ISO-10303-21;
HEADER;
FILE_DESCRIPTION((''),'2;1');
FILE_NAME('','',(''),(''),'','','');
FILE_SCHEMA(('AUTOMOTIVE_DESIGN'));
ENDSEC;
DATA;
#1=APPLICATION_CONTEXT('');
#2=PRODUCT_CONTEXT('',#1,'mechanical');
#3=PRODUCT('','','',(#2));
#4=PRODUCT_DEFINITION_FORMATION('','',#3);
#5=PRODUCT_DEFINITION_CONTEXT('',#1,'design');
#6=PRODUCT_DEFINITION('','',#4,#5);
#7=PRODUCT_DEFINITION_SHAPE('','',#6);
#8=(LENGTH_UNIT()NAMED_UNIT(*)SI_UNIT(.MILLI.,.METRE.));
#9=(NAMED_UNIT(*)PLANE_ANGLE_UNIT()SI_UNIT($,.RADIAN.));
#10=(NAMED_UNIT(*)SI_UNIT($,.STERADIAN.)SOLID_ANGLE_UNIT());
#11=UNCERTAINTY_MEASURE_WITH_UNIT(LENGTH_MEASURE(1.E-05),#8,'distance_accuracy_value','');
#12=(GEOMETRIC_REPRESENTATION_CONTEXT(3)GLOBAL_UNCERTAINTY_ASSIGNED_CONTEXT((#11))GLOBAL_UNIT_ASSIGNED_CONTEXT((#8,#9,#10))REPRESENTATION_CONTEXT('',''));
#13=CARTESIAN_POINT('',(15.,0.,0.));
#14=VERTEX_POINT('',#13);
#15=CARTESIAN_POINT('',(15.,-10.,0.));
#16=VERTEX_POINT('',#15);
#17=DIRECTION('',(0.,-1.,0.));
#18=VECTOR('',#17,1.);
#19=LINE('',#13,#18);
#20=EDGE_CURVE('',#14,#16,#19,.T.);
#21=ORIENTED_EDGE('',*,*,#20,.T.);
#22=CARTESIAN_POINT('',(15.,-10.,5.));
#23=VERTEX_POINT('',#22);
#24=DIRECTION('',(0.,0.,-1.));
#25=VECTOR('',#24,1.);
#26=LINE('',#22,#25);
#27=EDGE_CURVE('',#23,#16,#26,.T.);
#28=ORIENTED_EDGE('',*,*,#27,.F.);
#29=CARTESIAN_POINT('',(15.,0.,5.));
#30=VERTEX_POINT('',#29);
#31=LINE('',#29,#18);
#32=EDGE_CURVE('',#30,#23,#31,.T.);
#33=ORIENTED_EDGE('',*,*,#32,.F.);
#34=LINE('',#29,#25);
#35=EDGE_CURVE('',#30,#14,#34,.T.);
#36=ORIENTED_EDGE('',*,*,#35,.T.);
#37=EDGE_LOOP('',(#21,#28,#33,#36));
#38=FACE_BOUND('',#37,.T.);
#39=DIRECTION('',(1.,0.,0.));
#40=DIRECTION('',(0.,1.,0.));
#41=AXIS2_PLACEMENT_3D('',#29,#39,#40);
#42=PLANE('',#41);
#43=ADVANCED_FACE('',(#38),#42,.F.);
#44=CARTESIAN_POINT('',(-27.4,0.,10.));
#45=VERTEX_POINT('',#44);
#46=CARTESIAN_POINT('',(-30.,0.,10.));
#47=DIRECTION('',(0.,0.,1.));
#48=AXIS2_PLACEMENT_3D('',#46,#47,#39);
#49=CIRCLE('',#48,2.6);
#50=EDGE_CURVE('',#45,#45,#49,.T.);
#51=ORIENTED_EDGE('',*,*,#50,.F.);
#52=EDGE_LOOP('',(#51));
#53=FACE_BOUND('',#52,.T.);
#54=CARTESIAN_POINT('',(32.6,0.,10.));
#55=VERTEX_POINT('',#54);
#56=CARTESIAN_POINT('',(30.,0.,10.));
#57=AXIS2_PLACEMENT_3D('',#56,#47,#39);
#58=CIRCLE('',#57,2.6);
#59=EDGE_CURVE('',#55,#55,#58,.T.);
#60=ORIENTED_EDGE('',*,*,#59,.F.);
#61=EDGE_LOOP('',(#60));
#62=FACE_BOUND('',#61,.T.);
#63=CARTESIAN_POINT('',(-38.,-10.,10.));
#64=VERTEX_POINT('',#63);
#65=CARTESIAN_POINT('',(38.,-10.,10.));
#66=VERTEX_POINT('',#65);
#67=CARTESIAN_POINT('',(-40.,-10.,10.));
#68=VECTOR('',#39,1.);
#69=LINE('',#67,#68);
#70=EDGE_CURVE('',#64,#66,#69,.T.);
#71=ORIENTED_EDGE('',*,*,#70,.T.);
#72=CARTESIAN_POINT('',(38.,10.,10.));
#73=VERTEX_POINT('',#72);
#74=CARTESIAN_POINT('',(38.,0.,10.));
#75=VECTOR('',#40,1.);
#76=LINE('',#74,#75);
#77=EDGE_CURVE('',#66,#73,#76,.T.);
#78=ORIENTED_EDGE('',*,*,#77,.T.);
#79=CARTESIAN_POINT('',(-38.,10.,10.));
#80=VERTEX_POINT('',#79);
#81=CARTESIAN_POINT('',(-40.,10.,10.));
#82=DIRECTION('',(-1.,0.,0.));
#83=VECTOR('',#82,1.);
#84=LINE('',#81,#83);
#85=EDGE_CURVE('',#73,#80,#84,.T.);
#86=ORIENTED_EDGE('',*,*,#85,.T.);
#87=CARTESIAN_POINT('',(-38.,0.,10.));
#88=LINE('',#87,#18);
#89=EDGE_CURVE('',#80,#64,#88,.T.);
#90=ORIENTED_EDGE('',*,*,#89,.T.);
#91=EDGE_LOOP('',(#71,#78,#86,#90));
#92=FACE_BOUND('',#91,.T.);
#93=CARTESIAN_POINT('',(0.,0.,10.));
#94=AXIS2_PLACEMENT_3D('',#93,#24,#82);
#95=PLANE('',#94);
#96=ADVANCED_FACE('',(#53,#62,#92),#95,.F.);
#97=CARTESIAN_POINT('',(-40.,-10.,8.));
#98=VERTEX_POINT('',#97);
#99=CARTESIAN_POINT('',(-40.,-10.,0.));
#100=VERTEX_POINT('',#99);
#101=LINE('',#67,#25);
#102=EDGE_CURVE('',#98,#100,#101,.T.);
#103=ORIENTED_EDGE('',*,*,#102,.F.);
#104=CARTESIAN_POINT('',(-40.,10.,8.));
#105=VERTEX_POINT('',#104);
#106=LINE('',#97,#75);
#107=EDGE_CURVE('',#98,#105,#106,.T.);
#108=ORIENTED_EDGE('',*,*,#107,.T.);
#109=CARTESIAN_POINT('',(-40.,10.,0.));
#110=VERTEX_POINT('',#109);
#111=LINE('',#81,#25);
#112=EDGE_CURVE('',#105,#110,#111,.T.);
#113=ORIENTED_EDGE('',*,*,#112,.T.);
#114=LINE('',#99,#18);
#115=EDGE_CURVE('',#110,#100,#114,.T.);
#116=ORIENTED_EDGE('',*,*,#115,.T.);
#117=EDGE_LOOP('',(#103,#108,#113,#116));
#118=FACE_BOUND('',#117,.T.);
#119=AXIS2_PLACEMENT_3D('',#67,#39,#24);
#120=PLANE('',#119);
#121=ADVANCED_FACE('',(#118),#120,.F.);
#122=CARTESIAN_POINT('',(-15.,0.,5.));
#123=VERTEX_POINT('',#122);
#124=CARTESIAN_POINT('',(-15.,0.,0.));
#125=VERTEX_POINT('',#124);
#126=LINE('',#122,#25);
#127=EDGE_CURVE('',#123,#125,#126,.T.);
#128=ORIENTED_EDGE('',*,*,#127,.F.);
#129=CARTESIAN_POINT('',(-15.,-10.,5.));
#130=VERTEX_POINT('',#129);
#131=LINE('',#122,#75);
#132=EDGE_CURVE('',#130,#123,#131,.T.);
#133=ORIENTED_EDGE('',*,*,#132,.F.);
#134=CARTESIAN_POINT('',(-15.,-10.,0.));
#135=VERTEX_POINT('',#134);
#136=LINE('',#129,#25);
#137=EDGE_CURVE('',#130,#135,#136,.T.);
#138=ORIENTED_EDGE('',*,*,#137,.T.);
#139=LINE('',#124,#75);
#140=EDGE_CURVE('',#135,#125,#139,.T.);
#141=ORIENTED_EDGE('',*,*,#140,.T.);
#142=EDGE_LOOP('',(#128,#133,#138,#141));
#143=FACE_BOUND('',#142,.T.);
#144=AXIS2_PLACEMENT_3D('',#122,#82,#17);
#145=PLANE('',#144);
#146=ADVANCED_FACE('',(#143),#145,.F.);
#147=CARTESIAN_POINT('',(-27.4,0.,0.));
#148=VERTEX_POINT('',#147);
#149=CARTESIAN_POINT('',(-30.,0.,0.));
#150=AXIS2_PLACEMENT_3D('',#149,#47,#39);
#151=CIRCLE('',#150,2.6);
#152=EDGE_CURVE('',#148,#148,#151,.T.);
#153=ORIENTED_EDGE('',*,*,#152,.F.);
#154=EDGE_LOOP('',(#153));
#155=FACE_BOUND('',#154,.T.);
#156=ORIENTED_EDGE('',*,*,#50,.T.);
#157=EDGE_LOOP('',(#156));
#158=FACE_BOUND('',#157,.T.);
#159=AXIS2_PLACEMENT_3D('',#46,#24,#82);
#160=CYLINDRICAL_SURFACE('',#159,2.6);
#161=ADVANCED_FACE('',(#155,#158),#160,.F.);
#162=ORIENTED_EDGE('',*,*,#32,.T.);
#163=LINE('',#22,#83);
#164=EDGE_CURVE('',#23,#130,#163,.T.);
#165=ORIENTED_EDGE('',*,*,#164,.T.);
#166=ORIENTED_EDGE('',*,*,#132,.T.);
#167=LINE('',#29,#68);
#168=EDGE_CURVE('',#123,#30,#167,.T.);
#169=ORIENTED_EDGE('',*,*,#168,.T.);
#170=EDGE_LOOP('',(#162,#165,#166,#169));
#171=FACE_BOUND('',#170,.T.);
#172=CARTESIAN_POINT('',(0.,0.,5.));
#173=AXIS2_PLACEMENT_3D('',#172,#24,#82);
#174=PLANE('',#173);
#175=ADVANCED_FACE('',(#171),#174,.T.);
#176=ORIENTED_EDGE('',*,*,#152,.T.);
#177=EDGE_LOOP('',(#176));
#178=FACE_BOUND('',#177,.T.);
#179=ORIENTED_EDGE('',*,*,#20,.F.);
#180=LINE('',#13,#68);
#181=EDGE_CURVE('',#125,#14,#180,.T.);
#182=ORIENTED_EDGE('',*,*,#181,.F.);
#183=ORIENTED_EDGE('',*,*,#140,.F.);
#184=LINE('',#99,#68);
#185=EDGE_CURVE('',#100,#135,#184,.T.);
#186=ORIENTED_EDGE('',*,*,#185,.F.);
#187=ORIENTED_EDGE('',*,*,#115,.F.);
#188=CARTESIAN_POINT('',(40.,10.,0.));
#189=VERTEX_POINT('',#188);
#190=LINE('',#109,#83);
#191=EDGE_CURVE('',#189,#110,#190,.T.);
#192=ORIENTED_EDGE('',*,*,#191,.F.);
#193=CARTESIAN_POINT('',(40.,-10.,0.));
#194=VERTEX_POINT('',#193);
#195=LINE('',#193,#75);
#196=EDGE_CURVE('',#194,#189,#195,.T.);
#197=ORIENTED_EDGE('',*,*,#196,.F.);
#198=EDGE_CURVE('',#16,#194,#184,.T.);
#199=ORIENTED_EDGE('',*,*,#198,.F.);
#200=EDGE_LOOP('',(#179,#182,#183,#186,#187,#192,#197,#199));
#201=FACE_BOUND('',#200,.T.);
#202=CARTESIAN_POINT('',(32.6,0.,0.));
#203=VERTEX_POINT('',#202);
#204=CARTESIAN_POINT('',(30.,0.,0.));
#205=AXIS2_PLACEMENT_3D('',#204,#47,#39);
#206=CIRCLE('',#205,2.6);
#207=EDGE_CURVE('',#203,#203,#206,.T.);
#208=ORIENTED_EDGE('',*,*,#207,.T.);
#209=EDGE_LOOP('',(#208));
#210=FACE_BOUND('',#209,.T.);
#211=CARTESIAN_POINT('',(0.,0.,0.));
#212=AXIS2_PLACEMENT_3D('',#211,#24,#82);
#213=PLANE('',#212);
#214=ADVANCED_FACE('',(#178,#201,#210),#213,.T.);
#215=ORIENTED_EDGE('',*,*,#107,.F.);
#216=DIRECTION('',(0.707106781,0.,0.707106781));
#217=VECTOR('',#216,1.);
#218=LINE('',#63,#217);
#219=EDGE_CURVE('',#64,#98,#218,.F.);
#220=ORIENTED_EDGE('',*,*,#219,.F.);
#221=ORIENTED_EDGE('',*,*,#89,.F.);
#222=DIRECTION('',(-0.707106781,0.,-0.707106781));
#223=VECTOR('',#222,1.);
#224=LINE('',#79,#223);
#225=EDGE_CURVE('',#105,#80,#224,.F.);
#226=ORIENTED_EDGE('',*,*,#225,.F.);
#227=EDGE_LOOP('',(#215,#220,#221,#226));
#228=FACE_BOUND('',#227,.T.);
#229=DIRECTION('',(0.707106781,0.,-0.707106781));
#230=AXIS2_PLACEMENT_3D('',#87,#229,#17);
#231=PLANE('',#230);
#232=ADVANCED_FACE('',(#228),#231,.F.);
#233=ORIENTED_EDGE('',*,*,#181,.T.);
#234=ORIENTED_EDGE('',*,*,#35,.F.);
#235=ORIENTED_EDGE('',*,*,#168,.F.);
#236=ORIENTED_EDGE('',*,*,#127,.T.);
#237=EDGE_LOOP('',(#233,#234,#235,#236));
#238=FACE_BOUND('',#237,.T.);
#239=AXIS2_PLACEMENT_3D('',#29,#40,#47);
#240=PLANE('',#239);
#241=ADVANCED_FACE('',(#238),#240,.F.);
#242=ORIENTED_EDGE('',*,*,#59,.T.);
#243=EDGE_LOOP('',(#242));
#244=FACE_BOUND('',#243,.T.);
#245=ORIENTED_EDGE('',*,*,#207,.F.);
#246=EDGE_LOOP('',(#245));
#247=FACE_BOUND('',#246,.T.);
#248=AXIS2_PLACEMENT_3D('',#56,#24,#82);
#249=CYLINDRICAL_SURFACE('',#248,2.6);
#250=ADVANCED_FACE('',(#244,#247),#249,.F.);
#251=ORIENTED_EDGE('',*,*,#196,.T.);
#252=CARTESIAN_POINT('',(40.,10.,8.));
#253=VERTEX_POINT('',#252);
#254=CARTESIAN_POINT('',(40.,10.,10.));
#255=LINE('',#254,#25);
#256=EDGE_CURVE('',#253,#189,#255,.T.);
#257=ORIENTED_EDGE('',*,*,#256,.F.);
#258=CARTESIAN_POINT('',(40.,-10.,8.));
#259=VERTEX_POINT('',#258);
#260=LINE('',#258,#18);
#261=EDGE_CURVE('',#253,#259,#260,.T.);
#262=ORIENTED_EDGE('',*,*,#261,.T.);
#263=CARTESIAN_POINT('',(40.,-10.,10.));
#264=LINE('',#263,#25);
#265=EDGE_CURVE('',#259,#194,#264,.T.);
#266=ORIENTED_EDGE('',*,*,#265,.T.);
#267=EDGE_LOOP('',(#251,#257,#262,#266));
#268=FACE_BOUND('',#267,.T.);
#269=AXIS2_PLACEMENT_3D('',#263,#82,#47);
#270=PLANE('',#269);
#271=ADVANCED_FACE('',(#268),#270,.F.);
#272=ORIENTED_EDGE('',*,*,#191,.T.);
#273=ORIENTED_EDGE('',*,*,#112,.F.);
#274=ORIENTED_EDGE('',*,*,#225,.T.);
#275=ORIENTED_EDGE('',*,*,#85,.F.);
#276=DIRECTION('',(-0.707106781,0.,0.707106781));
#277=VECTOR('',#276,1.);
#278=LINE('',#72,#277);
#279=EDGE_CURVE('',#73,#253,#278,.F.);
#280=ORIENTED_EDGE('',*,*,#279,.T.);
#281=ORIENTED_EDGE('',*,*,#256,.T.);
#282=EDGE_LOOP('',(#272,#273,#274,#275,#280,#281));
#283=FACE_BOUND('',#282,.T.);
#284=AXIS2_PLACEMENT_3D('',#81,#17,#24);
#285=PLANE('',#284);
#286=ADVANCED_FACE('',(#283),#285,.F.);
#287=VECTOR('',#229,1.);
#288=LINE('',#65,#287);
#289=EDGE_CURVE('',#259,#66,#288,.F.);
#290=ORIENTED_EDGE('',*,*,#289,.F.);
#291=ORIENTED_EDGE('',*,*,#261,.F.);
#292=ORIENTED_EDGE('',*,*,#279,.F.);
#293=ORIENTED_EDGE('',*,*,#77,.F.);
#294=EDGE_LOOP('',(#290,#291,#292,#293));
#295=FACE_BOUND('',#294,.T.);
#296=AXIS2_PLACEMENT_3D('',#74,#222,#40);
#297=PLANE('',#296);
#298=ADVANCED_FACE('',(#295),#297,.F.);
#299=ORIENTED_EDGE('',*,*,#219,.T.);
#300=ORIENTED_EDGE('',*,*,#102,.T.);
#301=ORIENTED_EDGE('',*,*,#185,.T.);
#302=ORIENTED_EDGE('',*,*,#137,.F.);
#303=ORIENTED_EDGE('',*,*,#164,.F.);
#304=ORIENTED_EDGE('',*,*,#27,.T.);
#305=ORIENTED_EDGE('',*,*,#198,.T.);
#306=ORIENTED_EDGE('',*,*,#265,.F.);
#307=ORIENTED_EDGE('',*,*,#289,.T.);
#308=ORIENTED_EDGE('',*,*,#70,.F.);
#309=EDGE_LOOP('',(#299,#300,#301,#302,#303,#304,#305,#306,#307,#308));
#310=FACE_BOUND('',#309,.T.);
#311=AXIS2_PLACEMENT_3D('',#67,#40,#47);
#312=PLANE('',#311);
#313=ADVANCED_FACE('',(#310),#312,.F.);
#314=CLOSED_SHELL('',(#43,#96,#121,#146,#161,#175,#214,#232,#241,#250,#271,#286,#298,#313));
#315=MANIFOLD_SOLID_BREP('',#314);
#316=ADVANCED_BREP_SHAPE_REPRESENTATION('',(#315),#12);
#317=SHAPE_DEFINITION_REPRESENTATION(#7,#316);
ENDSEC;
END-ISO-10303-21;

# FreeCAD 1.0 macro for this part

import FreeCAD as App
import Part
import Sketcher
from FreeCAD import Vector


def edges_at(feature, points):
    """Names of the edges that pass closest to the given points."""
    edges = feature.Shape.Edges
    near = lambda p: min(range(len(edges)), key=lambda i: edges[i].distToShape(Part.Vertex(*p))[0])
    return sorted({f"Edge{near(p) + 1}" for p in points})


def add_polygon(sketch, points):
    """Adds a closed chain of lines whose ends are joined by coincident constraints."""
    first, n = sketch.GeometryCount, len(points)
    for a, b in zip(points, points[1:] + points[:1]):
        sketch.addGeometry(Part.LineSegment(App.Vector(*a, 0), App.Vector(*b, 0)), False)
    for i in range(n):
        sketch.addConstraint(Sketcher.Constraint("Coincident", first + i, 2, first + (i + 1) % n, 1))

doc = App.newDocument("Part")
body = doc.addObject("PartDesign::Body", "Body")

# Sketch on XY plane
sketch1 = doc.addObject("Sketcher::SketchObject", "Sketch")
body.addObject(sketch1)
sketch1.AttachmentSupport = (doc.XY_Plane, [""])
sketch1.MapMode = "FlatFace"
add_polygon(sketch1, [(-40, 10), (-40, -10), (40, -10), (40, 10)])  # lines 0-3
sketch1.addGeometry(Part.Circle(Vector(-30, 0, 0), Vector(0, 0, 1), 2.6), False)  # 4
sketch1.addGeometry(Part.Circle(Vector(30, 0, 0), Vector(0, 0, 1), 2.6), False)  # 5
sketch1.addConstraint(Sketcher.Constraint("Vertical", 0))
sketch1.addConstraint(Sketcher.Constraint("Horizontal", 1))
sketch1.addConstraint(Sketcher.Constraint("Vertical", 2))
sketch1.addConstraint(Sketcher.Constraint("Horizontal", 3))
sketch1.addConstraint(Sketcher.Constraint("Equal", 4, 5))
sketch1.addConstraint(Sketcher.Constraint("Symmetric", 4, 3, 5, 3, -1, 1))
sketch1.addConstraint(Sketcher.Constraint("Symmetric", 0, 2, 2, 2, -1, 1))
sketch1.addConstraint(Sketcher.Constraint("PointOnObject", 4, 3, -1))
sketch1.addConstraint(Sketcher.Constraint("Diameter", 4, 5.2))
sketch1.addConstraint(Sketcher.Constraint("DistanceX", 1, 1, 1, 2, 80.0))
sketch1.addConstraint(Sketcher.Constraint("DistanceY", 0, 2, 0, 1, 20.0))
sketch1.addConstraint(Sketcher.Constraint("DistanceX", 4, 3, -1, 1, 30.0))
pad1 = doc.addObject("PartDesign::Pad", "Pad")
body.addObject(pad1)
pad1.Profile = sketch1
pad1.Length = 10

# Sketch on XY plane
sketch2 = doc.addObject("Sketcher::SketchObject", "Sketch001")
body.addObject(sketch2)
sketch2.AttachmentSupport = (doc.XY_Plane, [""])
sketch2.MapMode = "FlatFace"
add_polygon(sketch2, [(15, 0), (15, -10), (-15, -10), (-15, 0)])  # lines 0-3
sketch2.addConstraint(Sketcher.Constraint("Vertical", 0))
sketch2.addConstraint(Sketcher.Constraint("Horizontal", 1))
sketch2.addConstraint(Sketcher.Constraint("Vertical", 2))
sketch2.addConstraint(Sketcher.Constraint("Horizontal", 3))
sketch2.addConstraint(Sketcher.Constraint("Symmetric", 2, 2, 3, 2, -1, 1))
sketch2.addConstraint(Sketcher.Constraint("DistanceX", 1, 2, 1, 1, 30.0))
sketch2.addConstraint(Sketcher.Constraint("DistanceY", 0, 2, 0, 1, 10.0))
pocket1 = doc.addObject("PartDesign::Pocket", "Pocket")
body.addObject(pocket1)
pocket1.Profile = sketch2
pocket1.Length = 5
pocket1.Reversed = True
doc.recompute()

chamfer = doc.addObject("PartDesign::Chamfer", "Chamfer")
body.addObject(chamfer)
chamfer.Base = (pocket1, edges_at(pocket1, [(-40, 0, 10), (40, 0, 10)]))
chamfer.Size = 2

doc.recompute()
